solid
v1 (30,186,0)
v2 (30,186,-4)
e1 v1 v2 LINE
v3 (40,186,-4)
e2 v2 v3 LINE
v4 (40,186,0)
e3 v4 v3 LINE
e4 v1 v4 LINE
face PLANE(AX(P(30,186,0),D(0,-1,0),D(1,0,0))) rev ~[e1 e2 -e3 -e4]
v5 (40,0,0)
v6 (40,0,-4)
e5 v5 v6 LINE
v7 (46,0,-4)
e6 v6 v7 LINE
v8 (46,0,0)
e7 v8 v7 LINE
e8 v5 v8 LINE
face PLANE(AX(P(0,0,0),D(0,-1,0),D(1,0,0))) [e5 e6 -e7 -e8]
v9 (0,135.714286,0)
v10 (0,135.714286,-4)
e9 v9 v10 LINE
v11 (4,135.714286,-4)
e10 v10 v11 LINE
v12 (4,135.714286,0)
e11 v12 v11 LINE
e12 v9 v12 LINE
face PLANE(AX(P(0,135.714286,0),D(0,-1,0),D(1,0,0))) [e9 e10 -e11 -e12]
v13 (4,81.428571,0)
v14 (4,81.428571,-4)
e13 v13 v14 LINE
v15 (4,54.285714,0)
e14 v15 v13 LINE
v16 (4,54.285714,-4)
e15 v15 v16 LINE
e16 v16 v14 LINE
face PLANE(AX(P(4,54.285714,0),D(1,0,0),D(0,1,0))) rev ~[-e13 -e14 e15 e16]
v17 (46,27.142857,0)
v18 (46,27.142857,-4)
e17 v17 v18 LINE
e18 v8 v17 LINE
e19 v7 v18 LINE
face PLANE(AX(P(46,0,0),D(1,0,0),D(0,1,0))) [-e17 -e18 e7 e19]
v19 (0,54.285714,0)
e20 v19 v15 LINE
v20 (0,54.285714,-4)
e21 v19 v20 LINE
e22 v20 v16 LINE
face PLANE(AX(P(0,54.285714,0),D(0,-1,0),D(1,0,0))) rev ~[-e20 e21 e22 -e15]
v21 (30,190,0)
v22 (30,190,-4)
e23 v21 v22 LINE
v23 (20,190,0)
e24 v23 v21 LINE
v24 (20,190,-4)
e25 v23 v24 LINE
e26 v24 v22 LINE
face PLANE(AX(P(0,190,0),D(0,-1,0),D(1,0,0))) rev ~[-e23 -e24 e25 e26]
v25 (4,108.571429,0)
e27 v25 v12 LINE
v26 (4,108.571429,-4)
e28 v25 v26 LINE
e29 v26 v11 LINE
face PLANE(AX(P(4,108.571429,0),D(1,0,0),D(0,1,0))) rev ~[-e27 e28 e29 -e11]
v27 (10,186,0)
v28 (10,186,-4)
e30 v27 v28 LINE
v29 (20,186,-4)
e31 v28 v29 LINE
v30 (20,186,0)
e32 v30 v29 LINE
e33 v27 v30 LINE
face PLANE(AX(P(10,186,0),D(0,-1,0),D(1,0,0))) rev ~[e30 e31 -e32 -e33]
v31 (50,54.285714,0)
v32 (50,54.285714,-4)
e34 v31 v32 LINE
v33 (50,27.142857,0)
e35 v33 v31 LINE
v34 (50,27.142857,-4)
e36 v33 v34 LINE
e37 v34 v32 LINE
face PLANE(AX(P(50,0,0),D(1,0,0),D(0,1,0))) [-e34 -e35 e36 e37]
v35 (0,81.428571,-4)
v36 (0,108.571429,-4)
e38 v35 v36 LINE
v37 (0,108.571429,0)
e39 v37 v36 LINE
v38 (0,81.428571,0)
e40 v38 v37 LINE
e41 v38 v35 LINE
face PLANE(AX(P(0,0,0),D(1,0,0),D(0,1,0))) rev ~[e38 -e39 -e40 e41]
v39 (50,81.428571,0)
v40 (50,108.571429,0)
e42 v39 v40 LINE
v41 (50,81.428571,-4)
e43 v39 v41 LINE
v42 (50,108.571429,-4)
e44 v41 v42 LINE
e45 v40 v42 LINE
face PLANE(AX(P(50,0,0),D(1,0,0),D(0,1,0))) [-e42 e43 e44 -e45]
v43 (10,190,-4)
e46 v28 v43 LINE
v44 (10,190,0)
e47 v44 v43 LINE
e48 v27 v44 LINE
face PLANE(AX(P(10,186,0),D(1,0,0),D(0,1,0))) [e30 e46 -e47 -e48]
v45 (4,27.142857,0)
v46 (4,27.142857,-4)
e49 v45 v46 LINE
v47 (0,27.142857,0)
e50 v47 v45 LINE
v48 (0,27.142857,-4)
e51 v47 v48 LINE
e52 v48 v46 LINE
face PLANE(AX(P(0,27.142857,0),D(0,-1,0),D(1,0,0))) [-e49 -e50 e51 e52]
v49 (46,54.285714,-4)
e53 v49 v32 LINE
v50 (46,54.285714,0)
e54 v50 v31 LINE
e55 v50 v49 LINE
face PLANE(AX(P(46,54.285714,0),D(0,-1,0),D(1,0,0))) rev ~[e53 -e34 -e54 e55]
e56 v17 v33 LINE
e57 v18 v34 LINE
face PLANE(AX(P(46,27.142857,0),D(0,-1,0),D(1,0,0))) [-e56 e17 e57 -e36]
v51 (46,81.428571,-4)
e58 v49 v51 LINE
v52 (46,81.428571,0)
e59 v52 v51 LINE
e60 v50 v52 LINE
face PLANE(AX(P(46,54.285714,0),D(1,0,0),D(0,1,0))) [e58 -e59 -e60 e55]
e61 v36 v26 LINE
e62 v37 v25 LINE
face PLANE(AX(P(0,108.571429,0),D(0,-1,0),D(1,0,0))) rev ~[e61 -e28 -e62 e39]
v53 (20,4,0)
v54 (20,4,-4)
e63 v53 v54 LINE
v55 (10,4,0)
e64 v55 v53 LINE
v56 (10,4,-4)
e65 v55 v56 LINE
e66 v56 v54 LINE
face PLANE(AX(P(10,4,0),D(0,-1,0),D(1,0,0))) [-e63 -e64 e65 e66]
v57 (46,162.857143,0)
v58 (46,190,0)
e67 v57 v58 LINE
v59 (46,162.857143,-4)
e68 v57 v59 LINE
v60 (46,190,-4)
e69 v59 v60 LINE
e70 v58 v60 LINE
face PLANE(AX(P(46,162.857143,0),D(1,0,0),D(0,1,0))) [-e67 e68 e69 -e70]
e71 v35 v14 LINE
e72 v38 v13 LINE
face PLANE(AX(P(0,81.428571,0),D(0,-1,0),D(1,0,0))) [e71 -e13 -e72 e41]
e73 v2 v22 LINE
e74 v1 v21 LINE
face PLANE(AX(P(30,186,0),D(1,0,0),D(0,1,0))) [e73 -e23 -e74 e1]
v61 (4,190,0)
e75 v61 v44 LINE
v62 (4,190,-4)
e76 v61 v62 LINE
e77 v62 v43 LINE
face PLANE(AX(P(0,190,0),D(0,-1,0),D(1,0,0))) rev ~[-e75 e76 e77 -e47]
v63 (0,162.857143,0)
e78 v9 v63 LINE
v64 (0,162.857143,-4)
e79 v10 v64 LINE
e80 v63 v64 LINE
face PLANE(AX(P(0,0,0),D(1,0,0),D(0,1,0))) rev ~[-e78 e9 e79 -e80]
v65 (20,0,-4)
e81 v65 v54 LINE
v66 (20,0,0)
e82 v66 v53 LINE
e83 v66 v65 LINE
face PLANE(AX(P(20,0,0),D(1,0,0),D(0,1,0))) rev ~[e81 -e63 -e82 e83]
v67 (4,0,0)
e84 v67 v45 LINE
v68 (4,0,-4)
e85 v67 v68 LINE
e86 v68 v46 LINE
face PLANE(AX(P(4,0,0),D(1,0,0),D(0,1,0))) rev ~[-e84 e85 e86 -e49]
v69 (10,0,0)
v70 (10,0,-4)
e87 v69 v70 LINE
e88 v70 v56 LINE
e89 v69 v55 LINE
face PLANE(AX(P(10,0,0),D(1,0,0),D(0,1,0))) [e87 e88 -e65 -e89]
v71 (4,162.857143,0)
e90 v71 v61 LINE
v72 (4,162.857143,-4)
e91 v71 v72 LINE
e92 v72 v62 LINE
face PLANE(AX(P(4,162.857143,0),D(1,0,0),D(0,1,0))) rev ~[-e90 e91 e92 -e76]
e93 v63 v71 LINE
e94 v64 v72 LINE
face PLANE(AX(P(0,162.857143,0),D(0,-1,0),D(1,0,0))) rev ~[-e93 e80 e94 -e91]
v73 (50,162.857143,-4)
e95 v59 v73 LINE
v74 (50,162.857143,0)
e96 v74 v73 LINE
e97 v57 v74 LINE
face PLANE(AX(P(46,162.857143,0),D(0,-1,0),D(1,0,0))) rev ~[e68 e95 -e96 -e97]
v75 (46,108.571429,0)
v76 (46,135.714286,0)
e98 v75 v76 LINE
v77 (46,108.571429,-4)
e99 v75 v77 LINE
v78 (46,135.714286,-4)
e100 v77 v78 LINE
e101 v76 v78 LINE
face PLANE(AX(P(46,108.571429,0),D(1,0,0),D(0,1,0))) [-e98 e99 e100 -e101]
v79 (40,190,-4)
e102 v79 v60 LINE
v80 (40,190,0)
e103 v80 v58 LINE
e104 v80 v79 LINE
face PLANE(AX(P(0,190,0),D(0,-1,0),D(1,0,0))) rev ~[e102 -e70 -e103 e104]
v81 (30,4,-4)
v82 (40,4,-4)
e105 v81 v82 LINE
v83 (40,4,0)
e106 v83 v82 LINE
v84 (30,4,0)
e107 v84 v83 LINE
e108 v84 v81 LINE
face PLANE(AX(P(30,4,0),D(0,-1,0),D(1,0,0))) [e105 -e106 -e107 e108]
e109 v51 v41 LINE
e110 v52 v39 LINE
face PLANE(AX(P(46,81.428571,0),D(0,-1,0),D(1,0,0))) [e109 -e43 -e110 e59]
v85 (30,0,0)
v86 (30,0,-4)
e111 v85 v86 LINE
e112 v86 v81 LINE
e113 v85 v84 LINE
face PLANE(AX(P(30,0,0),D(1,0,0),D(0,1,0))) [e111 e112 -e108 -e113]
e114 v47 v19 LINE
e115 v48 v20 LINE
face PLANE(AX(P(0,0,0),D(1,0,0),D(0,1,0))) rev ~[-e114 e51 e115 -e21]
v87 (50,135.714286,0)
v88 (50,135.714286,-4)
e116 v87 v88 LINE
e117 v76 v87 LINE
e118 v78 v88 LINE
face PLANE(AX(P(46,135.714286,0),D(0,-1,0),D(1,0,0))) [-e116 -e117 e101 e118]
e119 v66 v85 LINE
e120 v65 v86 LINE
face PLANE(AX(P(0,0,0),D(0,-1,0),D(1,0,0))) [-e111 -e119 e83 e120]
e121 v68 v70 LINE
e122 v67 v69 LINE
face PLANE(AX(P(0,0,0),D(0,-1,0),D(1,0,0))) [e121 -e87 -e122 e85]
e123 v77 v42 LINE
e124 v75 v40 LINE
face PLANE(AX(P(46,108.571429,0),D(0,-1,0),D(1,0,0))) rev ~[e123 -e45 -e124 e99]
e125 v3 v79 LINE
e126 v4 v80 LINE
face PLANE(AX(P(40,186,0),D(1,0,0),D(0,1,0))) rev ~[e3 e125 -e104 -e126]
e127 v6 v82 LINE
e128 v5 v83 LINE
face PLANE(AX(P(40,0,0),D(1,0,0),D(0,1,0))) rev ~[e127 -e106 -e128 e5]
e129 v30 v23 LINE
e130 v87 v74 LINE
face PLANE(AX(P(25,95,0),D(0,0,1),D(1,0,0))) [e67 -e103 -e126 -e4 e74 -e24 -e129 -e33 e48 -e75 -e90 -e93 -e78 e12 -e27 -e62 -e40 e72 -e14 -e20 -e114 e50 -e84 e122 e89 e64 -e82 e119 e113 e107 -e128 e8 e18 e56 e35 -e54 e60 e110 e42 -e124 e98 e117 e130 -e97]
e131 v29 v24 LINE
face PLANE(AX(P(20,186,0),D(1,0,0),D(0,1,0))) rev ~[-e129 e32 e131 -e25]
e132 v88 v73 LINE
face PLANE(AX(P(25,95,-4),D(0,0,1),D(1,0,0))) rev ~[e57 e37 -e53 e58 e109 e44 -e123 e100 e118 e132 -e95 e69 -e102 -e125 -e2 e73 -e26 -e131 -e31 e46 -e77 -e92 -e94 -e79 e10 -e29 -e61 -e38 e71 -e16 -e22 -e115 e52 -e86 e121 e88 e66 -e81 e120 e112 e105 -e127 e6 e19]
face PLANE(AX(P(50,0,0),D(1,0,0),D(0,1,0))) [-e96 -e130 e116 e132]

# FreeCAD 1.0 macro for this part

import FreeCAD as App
import Part
import Sketcher

V = App.Vector

doc = App.newDocument("Part")
body = doc.addObject("PartDesign::Body", "Body")

# Sketch on XY plane
sketch1 = doc.addObject("Sketcher::SketchObject", "Sketch")
body.addObject(sketch1)
sketch1.AttachmentSupport = (doc.XY_Plane, [""])
sketch1.MapMode = "FlatFace"
sketch1.addGeometry([
    Part.LineSegment(V(0, 190, 0), V(0, 0, 0)),
    Part.LineSegment(V(0, 0, 0), V(50, 0, 0)),
    Part.LineSegment(V(50, 0, 0), V(50, 190, 0)),
    Part.LineSegment(V(50, 190, 0), V(0, 190, 0)),
], False)
sketch1.addConstraint([
    Sketcher.Constraint("Coincident", 0, 2, 1, 1),
    Sketcher.Constraint("Coincident", 1, 2, 2, 1),
    Sketcher.Constraint("Coincident", 2, 2, 3, 1),
    Sketcher.Constraint("Coincident", 3, 2, 0, 1),
    Sketcher.Constraint("Vertical", 0),
    Sketcher.Constraint("Horizontal", 1),
    Sketcher.Constraint("Vertical", 2),
    Sketcher.Constraint("Horizontal", 3),
    Sketcher.Constraint("Coincident", 0, 2, -1, 1),
    Sketcher.Constraint("DistanceX", 1, 1, 1, 2, 50.0),
    Sketcher.Constraint("DistanceY", 0, 2, 0, 1, 190.0),
])
pad1 = doc.addObject("PartDesign::Pad", "Pad")
body.addObject(pad1)
pad1.Profile = sketch1
pad1.Length = 4
pad1.Reversed = True

# Sketch on XY plane
sketch2 = doc.addObject("Sketcher::SketchObject", "Sketch001")
body.addObject(sketch2)
sketch2.AttachmentSupport = (doc.XY_Plane, [""])
sketch2.MapMode = "FlatFace"
sketch2.addGeometry([
    Part.LineSegment(V(10, 190, 0), V(10, 186, 0)),
    Part.LineSegment(V(10, 186, 0), V(20, 186, 0)),
    Part.LineSegment(V(20, 186, 0), V(20, 190, 0)),
    Part.LineSegment(V(20, 190, 0), V(10, 190, 0)),
], False)
sketch2.addConstraint([
    Sketcher.Constraint("Coincident", 0, 2, 1, 1),
    Sketcher.Constraint("Coincident", 1, 2, 2, 1),
    Sketcher.Constraint("Coincident", 2, 2, 3, 1),
    Sketcher.Constraint("Coincident", 3, 2, 0, 1),
    Sketcher.Constraint("Vertical", 0),
    Sketcher.Constraint("Horizontal", 1),
    Sketcher.Constraint("Vertical", 2),
    Sketcher.Constraint("Horizontal", 3),
    Sketcher.Constraint("DistanceX", 1, 1, 1, 2, 10.0),
    Sketcher.Constraint("DistanceY", 0, 2, 0, 1, 4.0),
    Sketcher.Constraint("DistanceX", -1, 1, 0, 2, 10.0),
    Sketcher.Constraint("DistanceY", -1, 1, 0, 2, 186.0),
])
pocket1 = doc.addObject("PartDesign::Pocket", "Pocket")
body.addObject(pocket1)
pocket1.Profile = sketch2
pocket1.Type = "ThroughAll"
doc.recompute()

linearpattern = doc.addObject("PartDesign::LinearPattern", "LinearPattern")
body.addObject(linearpattern)
linearpattern.Originals = [pocket1]
linearpattern.Direction = (doc.X_Axis, [""])
linearpattern.Mode = "offset"
linearpattern.Offset = 20
linearpattern.Occurrences = 2
body.Tip = linearpattern

# Sketch on XY plane
sketch3 = doc.addObject("Sketcher::SketchObject", "Sketch002")
body.addObject(sketch3)
sketch3.AttachmentSupport = (doc.XY_Plane, [""])
sketch3.MapMode = "FlatFace"
sketch3.addGeometry([
    Part.LineSegment(V(0, 190, 0), V(0, 162.9, 0)),
    Part.LineSegment(V(0, 162.9, 0), V(4, 162.9, 0)),
    Part.LineSegment(V(4, 162.9, 0), V(4, 190, 0)),
    Part.LineSegment(V(4, 190, 0), V(0, 190, 0)),
], False)
sketch3.addConstraint([
    Sketcher.Constraint("Coincident", 0, 2, 1, 1),
    Sketcher.Constraint("Coincident", 1, 2, 2, 1),
    Sketcher.Constraint("Coincident", 2, 2, 3, 1),
    Sketcher.Constraint("Coincident", 3, 2, 0, 1),
    Sketcher.Constraint("Vertical", 0),
    Sketcher.Constraint("Horizontal", 1),
    Sketcher.Constraint("Vertical", 2),
    Sketcher.Constraint("Horizontal", 3),
    Sketcher.Constraint("PointOnObject", 0, 2, -2),
    Sketcher.Constraint("DistanceX", 1, 1, 1, 2, 4.0),
    Sketcher.Constraint("DistanceY", -1, 1, 2, 2, 190.0),
    Sketcher.Constraint("DistanceY", 0, 2, 0, 1, 27.142857),
])
pocket2 = doc.addObject("PartDesign::Pocket", "Pocket001")
body.addObject(pocket2)
pocket2.Profile = sketch3
pocket2.Type = "ThroughAll"
doc.recompute()

linearpattern2 = doc.addObject("PartDesign::LinearPattern", "LinearPattern001")
body.addObject(linearpattern2)
linearpattern2.Originals = [pocket2]
linearpattern2.Direction = (doc.Y_Axis, [""])
linearpattern2.Mode = "offset"
linearpattern2.Offset = 54.285714
linearpattern2.Occurrences = 4
linearpattern2.Reversed = True
body.Tip = linearpattern2

# Sketch on XY plane
sketch4 = doc.addObject("Sketcher::SketchObject", "Sketch003")
body.addObject(sketch4)
sketch4.AttachmentSupport = (doc.XY_Plane, [""])
sketch4.MapMode = "FlatFace"
sketch4.addGeometry([
    Part.LineSegment(V(10, 4, 0), V(10, 0, 0)),
    Part.LineSegment(V(10, 0, 0), V(20, 0, 0)),
    Part.LineSegment(V(20, 0, 0), V(20, 4, 0)),
    Part.LineSegment(V(20, 4, 0), V(10, 4, 0)),
], False)
sketch4.addConstraint([
    Sketcher.Constraint("Coincident", 0, 2, 1, 1),
    Sketcher.Constraint("Coincident", 1, 2, 2, 1),
    Sketcher.Constraint("Coincident", 2, 2, 3, 1),
    Sketcher.Constraint("Coincident", 3, 2, 0, 1),
    Sketcher.Constraint("Vertical", 0),
    Sketcher.Constraint("Horizontal", 1),
    Sketcher.Constraint("Vertical", 2),
    Sketcher.Constraint("Horizontal", 3),
    Sketcher.Constraint("PointOnObject", 0, 2, -1),
    Sketcher.Constraint("DistanceX", 1, 1, 1, 2, 10.0),
    Sketcher.Constraint("DistanceY", 0, 2, 0, 1, 4.0),
    Sketcher.Constraint("DistanceX", -1, 1, 0, 2, 10.0),
])
pocket3 = doc.addObject("PartDesign::Pocket", "Pocket002")
body.addObject(pocket3)
pocket3.Profile = sketch4
pocket3.Type = "ThroughAll"
doc.recompute()

linearpattern3 = doc.addObject("PartDesign::LinearPattern", "LinearPattern002")
body.addObject(linearpattern3)
linearpattern3.Originals = [pocket3]
linearpattern3.Direction = (doc.X_Axis, [""])
linearpattern3.Mode = "offset"
linearpattern3.Offset = 20
linearpattern3.Occurrences = 2
body.Tip = linearpattern3

# Sketch on XY plane
sketch5 = doc.addObject("Sketcher::SketchObject", "Sketch004")
body.addObject(sketch5)
sketch5.AttachmentSupport = (doc.XY_Plane, [""])
sketch5.MapMode = "FlatFace"
sketch5.addGeometry([
    Part.LineSegment(V(46, 190, 0), V(46, 162.9, 0)),
    Part.LineSegment(V(46, 162.9, 0), V(50, 162.9, 0)),
    Part.LineSegment(V(50, 162.9, 0), V(50, 190, 0)),
    Part.LineSegment(V(50, 190, 0), V(46, 190, 0)),
], False)
sketch5.addConstraint([
    Sketcher.Constraint("Coincident", 0, 2, 1, 1),
    Sketcher.Constraint("Coincident", 1, 2, 2, 1),
    Sketcher.Constraint("Coincident", 2, 2, 3, 1),
    Sketcher.Constraint("Coincident", 3, 2, 0, 1),
    Sketcher.Constraint("Vertical", 0),
    Sketcher.Constraint("Horizontal", 1),
    Sketcher.Constraint("Vertical", 2),
    Sketcher.Constraint("Horizontal", 3),
    Sketcher.Constraint("DistanceX", 1, 1, 1, 2, 4.0),
    Sketcher.Constraint("DistanceX", -1, 1, 0, 2, 46.0),
    Sketcher.Constraint("DistanceY", -1, 1, 2, 2, 190.0),
    Sketcher.Constraint("DistanceY", 0, 2, 0, 1, 27.142857),
])
pocket4 = doc.addObject("PartDesign::Pocket", "Pocket003")
body.addObject(pocket4)
pocket4.Profile = sketch5
pocket4.Type = "ThroughAll"
doc.recompute()

linearpattern4 = doc.addObject("PartDesign::LinearPattern", "LinearPattern003")
body.addObject(linearpattern4)
linearpattern4.Originals = [pocket4]
linearpattern4.Direction = (doc.Y_Axis, [""])
linearpattern4.Mode = "offset"
linearpattern4.Offset = 54.285714
linearpattern4.Occurrences = 4
linearpattern4.Reversed = True
body.Tip = linearpattern4

doc.recompute()
